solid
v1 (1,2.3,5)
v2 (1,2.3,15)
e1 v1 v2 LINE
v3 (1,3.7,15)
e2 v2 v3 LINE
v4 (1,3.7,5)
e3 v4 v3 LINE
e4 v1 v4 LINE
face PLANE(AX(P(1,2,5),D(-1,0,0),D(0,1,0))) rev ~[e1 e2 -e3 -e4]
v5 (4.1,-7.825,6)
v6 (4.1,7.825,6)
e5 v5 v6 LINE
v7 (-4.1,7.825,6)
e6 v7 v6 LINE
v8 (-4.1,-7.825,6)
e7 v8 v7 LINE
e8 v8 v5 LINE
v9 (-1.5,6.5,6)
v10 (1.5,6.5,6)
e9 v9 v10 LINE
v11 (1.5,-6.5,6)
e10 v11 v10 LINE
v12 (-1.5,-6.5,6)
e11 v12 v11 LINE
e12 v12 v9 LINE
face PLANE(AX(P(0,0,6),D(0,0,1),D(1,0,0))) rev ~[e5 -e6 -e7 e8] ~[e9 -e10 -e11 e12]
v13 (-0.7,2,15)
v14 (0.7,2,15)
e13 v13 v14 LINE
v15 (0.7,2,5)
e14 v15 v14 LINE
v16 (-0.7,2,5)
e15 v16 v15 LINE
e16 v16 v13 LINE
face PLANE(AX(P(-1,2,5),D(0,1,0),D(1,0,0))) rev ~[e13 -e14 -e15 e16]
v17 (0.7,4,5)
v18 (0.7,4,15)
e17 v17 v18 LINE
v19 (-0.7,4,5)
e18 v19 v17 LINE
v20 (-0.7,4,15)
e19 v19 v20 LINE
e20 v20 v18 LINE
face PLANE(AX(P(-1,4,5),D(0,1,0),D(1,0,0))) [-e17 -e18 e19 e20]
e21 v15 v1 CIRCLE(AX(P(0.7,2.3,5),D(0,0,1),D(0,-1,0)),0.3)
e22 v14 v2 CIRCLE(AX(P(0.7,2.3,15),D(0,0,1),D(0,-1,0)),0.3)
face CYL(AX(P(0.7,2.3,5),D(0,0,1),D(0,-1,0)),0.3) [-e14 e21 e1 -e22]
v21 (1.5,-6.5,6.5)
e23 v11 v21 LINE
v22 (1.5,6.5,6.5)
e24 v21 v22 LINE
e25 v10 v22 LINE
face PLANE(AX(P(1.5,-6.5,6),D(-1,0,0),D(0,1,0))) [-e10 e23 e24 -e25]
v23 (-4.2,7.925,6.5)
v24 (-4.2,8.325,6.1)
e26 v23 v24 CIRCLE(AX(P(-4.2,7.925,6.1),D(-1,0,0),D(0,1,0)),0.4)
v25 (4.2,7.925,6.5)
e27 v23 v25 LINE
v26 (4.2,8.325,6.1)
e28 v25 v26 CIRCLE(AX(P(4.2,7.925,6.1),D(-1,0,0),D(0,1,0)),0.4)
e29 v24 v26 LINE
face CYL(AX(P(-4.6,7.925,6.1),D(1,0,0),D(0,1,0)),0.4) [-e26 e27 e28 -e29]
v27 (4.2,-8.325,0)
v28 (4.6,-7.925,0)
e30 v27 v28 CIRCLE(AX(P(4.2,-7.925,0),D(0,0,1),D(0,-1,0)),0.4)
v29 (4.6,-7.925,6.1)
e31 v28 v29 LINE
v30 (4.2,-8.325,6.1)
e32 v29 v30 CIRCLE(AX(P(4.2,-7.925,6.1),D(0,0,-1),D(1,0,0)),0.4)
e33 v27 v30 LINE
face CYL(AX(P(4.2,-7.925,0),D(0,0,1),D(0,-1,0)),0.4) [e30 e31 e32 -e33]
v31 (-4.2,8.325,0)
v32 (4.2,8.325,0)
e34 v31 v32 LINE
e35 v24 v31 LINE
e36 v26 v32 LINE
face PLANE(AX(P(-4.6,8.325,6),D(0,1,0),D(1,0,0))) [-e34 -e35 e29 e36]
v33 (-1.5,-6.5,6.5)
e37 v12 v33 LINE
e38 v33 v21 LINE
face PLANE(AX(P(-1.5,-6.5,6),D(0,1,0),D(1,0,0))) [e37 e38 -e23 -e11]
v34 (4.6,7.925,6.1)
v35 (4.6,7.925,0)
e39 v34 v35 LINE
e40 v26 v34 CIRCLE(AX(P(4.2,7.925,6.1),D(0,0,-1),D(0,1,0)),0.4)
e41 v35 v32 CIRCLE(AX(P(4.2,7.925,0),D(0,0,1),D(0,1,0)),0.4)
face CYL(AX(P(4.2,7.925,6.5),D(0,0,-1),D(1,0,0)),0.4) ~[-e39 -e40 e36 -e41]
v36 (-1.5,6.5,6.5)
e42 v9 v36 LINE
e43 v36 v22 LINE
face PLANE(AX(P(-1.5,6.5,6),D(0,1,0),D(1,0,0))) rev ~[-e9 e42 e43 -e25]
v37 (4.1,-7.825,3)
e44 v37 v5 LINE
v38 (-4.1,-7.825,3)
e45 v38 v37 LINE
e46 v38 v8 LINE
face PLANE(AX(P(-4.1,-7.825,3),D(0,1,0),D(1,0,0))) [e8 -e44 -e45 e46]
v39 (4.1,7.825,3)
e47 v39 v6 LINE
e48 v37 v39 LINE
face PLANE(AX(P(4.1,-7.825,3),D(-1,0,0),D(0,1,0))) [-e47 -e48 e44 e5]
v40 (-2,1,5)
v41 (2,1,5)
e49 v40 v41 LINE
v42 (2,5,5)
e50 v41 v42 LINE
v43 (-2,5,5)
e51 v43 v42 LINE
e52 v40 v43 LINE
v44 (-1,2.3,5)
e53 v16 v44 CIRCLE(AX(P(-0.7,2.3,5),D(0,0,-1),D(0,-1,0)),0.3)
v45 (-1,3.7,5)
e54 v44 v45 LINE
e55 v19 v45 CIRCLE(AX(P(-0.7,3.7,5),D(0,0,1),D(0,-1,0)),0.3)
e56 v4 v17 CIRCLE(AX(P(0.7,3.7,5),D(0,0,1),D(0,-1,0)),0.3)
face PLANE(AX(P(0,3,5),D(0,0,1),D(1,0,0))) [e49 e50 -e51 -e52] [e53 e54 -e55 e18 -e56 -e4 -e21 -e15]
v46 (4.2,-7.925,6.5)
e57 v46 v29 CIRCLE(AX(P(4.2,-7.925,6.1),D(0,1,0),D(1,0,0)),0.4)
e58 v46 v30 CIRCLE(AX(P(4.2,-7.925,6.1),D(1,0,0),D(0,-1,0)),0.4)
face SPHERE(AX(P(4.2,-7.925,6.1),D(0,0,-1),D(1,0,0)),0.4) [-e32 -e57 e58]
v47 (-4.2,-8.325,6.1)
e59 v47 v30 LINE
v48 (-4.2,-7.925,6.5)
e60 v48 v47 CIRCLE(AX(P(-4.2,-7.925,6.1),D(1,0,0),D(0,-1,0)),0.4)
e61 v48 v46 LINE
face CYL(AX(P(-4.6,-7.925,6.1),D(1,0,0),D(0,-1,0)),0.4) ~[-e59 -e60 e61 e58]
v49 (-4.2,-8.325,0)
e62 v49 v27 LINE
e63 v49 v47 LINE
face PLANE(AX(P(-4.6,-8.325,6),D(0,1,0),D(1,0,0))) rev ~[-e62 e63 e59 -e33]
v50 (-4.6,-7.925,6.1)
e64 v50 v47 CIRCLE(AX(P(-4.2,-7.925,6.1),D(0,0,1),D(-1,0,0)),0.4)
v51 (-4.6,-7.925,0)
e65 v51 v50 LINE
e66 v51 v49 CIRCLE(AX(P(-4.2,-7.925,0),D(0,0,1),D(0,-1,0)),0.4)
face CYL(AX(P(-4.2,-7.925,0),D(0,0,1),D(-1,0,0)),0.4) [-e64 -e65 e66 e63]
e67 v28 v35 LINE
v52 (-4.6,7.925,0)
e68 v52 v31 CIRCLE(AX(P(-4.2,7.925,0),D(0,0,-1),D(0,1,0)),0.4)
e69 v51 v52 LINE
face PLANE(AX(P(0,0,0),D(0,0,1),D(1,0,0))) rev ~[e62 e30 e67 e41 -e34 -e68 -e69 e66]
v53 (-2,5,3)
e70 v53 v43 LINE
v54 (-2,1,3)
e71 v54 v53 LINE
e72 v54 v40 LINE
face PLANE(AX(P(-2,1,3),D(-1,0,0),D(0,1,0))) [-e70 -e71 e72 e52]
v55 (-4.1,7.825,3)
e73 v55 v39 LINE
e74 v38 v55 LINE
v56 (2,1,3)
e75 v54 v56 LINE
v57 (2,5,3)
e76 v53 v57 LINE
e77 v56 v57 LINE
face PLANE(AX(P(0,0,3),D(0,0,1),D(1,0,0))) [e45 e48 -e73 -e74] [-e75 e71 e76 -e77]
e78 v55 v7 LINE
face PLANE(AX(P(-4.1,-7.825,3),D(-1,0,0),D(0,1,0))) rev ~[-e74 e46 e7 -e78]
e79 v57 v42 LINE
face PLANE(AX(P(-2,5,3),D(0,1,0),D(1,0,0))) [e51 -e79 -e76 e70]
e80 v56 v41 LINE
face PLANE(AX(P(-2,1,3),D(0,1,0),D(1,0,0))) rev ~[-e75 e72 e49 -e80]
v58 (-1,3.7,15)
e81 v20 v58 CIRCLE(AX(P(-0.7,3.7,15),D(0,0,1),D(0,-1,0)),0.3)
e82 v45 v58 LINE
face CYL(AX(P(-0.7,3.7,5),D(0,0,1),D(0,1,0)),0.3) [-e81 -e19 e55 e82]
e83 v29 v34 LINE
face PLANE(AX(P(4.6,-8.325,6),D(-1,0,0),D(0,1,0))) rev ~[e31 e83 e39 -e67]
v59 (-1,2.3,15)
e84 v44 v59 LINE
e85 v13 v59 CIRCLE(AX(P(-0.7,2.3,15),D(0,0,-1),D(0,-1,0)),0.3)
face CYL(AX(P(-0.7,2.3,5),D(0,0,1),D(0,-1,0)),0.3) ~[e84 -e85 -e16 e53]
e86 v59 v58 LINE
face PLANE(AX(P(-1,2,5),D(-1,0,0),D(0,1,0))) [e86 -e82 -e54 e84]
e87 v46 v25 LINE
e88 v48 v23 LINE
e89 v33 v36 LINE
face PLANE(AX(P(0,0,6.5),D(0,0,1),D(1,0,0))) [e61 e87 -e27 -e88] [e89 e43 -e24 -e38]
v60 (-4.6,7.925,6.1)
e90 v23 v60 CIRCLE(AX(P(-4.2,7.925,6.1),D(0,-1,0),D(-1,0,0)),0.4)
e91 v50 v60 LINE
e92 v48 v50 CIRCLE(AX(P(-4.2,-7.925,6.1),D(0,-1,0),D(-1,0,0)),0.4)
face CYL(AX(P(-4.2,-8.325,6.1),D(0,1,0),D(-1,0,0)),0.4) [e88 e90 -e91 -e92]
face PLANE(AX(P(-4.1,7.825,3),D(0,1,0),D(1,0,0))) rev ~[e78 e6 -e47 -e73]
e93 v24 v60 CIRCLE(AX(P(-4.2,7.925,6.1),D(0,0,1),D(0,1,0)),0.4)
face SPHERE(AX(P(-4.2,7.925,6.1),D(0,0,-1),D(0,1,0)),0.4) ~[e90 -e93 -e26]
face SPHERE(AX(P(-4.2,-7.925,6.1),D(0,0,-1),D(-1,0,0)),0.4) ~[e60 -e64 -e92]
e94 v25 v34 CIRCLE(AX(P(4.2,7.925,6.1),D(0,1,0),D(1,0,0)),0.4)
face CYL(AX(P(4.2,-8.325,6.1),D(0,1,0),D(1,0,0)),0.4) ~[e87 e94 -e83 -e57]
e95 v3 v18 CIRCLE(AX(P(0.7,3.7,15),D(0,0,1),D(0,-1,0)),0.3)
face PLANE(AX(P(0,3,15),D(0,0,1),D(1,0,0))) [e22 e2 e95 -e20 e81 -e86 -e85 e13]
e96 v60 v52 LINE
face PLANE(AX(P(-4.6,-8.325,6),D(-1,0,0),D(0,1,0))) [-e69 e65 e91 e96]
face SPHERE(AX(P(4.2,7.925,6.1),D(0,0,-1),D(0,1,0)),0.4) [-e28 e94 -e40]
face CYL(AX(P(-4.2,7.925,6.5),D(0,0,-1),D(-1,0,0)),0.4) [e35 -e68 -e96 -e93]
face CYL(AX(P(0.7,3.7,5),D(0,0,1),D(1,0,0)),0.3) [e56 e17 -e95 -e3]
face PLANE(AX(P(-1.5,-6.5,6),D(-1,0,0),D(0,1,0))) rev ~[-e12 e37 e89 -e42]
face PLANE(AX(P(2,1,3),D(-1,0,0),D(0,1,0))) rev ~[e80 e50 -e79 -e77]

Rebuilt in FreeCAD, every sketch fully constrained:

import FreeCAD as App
import Part
import Sketcher
from FreeCAD import Vector
Q = App.Units.Quantity


def edges_at(feature, points):
    """Names of the edges that pass closest to the given points."""
    edges = feature.Shape.Edges
    near = lambda p: min(range(len(edges)), key=lambda i: edges[i].distToShape(Part.Vertex(*p))[0])
    return sorted({f"Edge{near(p) + 1}" for p in points})

doc = App.newDocument("Part")
body = doc.addObject("PartDesign::Body", "Body")

# Sketch on XY plane
sketch1 = doc.addObject("Sketcher::SketchObject", "Sketch")
body.addObject(sketch1)
sketch1.AttachmentSupport = (doc.XY_Plane, [""])
sketch1.MapMode = "FlatFace"
sketch1.addGeometry([
    Part.LineSegment(Vector(-5, 8, 0), Vector(-5, -8, 0)),
    Part.LineSegment(Vector(-5, -8, 0), Vector(5, -8, 0)),
    Part.LineSegment(Vector(5, -8, 0), Vector(5, 8, 0)),
    Part.LineSegment(Vector(5, 8, 0), Vector(-5, 8, 0)),
], False)
sketch1.addConstraint([
    Sketcher.Constraint("Coincident", 0, 2, 1, 1),
    Sketcher.Constraint("Coincident", 1, 2, 2, 1),
    Sketcher.Constraint("Coincident", 2, 2, 3, 1),
    Sketcher.Constraint("Coincident", 3, 2, 0, 1),
    Sketcher.Constraint("Vertical", 0),
    Sketcher.Constraint("Horizontal", 1),
    Sketcher.Constraint("Vertical", 2),
    Sketcher.Constraint("Horizontal", 3),
    Sketcher.Constraint("Symmetric", 0, 2, 2, 2, -1, 1),
    Sketcher.Constraint("DistanceX", 1, 1, 1, 2, Q("9.2 mm")),
    Sketcher.Constraint("DistanceY", 0, 2, 0, 1, Q("16.65 mm")),
])
pad1 = doc.addObject("PartDesign::Pad", "Pad")
body.addObject(pad1)
pad1.Profile = sketch1
pad1.Length = 3

# Sketch on XY plane
sketch2 = doc.addObject("Sketcher::SketchObject", "Sketch001")
body.addObject(sketch2)
sketch2.AttachmentSupport = (doc.XY_Plane, [""])
sketch2.MapMode = "FlatFace"
sketch2.AttachmentOffset = App.Placement(Vector(0, 0, 3), App.Rotation())
sketch2.addGeometry([
    Part.LineSegment(Vector(-5, 8, 0), Vector(-5, -8, 0)),  # 0
    Part.LineSegment(Vector(-5, -8, 0), Vector(5, -8, 0)),  # 1
    Part.LineSegment(Vector(5, -8, 0), Vector(5, 8, 0)),  # 2
    Part.LineSegment(Vector(5, 8, 0), Vector(-5, 8, 0)),  # 3
    Part.LineSegment(Vector(4, -8, 0), Vector(-4, -8, 0)),  # 4
    Part.LineSegment(Vector(-4, -8, 0), Vector(-4, 8, 0)),  # 5
    Part.LineSegment(Vector(-4, 8, 0), Vector(4, 8, 0)),  # 6
    Part.LineSegment(Vector(4, 8, 0), Vector(4, -8, 0)),  # 7
], False)
sketch2.addConstraint([
    Sketcher.Constraint("Coincident", 0, 2, 1, 1),
    Sketcher.Constraint("Coincident", 1, 2, 2, 1),
    Sketcher.Constraint("Coincident", 2, 2, 3, 1),
    Sketcher.Constraint("Coincident", 3, 2, 0, 1),
    Sketcher.Constraint("Coincident", 4, 2, 5, 1),
    Sketcher.Constraint("Coincident", 5, 2, 6, 1),
    Sketcher.Constraint("Coincident", 6, 2, 7, 1),
    Sketcher.Constraint("Coincident", 7, 2, 4, 1),
    Sketcher.Constraint("Vertical", 0),
    Sketcher.Constraint("Horizontal", 1),
    Sketcher.Constraint("Vertical", 2),
    Sketcher.Constraint("Horizontal", 3),
    Sketcher.Constraint("Horizontal", 4),
    Sketcher.Constraint("Vertical", 5),
    Sketcher.Constraint("Horizontal", 6),
    Sketcher.Constraint("Vertical", 7),
    Sketcher.Constraint("Symmetric", 0, 2, 2, 2, -1, 1),
    Sketcher.Constraint("Symmetric", 4, 2, 6, 2, -1, 1),
    Sketcher.Constraint("DistanceX", 1, 1, 1, 2, Q("9.2 mm")),
    Sketcher.Constraint("DistanceX", 4, 2, 4, 1, Q("8.2 mm")),
    Sketcher.Constraint("DistanceY", 0, 2, 0, 1, Q("16.65 mm")),
    Sketcher.Constraint("DistanceY", 5, 1, 5, 2, Q("15.65 mm")),
])
pad2 = doc.addObject("PartDesign::Pad", "Pad001")
body.addObject(pad2)
pad2.Profile = sketch2
pad2.Length = 3

# Sketch on XY plane
sketch3 = doc.addObject("Sketcher::SketchObject", "Sketch002")
body.addObject(sketch3)
sketch3.AttachmentSupport = (doc.XY_Plane, [""])
sketch3.MapMode = "FlatFace"
sketch3.AttachmentOffset = App.Placement(Vector(0, 0, 6), App.Rotation())
sketch3.addGeometry([
    Part.LineSegment(Vector(-4.6, 8.3, 0), Vector(-4.6, -8.3, 0)),  # 0
    Part.LineSegment(Vector(-4.6, -8.3, 0), Vector(4.6, -8.3, 0)),  # 1
    Part.LineSegment(Vector(4.6, -8.3, 0), Vector(4.6, 8.3, 0)),  # 2
    Part.LineSegment(Vector(4.6, 8.3, 0), Vector(-4.6, 8.3, 0)),  # 3
    Part.LineSegment(Vector(1.5, -6.5, 0), Vector(-1.5, -6.5, 0)),  # 4
    Part.LineSegment(Vector(-1.5, -6.5, 0), Vector(-1.5, 6.5, 0)),  # 5
    Part.LineSegment(Vector(-1.5, 6.5, 0), Vector(1.5, 6.5, 0)),  # 6
    Part.LineSegment(Vector(1.5, 6.5, 0), Vector(1.5, -6.5, 0)),  # 7
], False)
sketch3.addConstraint([
    Sketcher.Constraint("Coincident", 0, 2, 1, 1),
    Sketcher.Constraint("Coincident", 1, 2, 2, 1),
    Sketcher.Constraint("Coincident", 2, 2, 3, 1),
    Sketcher.Constraint("Coincident", 3, 2, 0, 1),
    Sketcher.Constraint("Coincident", 4, 2, 5, 1),
    Sketcher.Constraint("Coincident", 5, 2, 6, 1),
    Sketcher.Constraint("Coincident", 6, 2, 7, 1),
    Sketcher.Constraint("Coincident", 7, 2, 4, 1),
    Sketcher.Constraint("Vertical", 0),
    Sketcher.Constraint("Horizontal", 1),
    Sketcher.Constraint("Vertical", 2),
    Sketcher.Constraint("Horizontal", 3),
    Sketcher.Constraint("Horizontal", 4),
    Sketcher.Constraint("Vertical", 5),
    Sketcher.Constraint("Horizontal", 6),
    Sketcher.Constraint("Vertical", 7),
    Sketcher.Constraint("Symmetric", 0, 2, 2, 2, -1, 1),
    Sketcher.Constraint("Symmetric", 4, 2, 6, 2, -1, 1),
    Sketcher.Constraint("DistanceX", 4, 2, 4, 1, Q("3 mm")),
    Sketcher.Constraint("DistanceY", 5, 1, 5, 2, Q("13 mm")),
    Sketcher.Constraint("DistanceX", 1, 1, 1, 2, Q("9.2 mm")),
    Sketcher.Constraint("DistanceY", 0, 2, 0, 1, Q("16.65 mm")),
])
pad3 = doc.addObject("PartDesign::Pad", "Pad002")
body.addObject(pad3)
pad3.Profile = sketch3
pad3.Length = 0.5
doc.recompute()

fillet = doc.addObject("PartDesign::Fillet", "Fillet")
body.addObject(fillet)
fillet.Base = (pad3, edges_at(pad3, [
    (4.6, -8.325, 3.25),
    (-4.6, -8.325, 3.25),
    (-4.6, 8.325, 3.25),
    (4.6, 8.325, 3.25),
    (0, 8.325, 6.5),
    (4.6, 0, 6.5),
    (-4.6, 0, 6.5),
    (0, -8.325, 6.5),
]))
fillet.Radius = 0.4

# Sketch on XY plane
sketch4 = doc.addObject("Sketcher::SketchObject", "Sketch003")
body.addObject(sketch4)
sketch4.AttachmentSupport = (doc.XY_Plane, [""])
sketch4.MapMode = "FlatFace"
sketch4.AttachmentOffset = App.Placement(Vector(0, 0, 3), App.Rotation())
sketch4.addGeometry([
    Part.LineSegment(Vector(-2, 5, 0), Vector(-2, 1, 0)),
    Part.LineSegment(Vector(-2, 1, 0), Vector(2, 1, 0)),
    Part.LineSegment(Vector(2, 1, 0), Vector(2, 5, 0)),
    Part.LineSegment(Vector(2, 5, 0), Vector(-2, 5, 0)),
], False)
sketch4.addConstraint([
    Sketcher.Constraint("Coincident", 0, 2, 1, 1),
    Sketcher.Constraint("Coincident", 1, 2, 2, 1),
    Sketcher.Constraint("Coincident", 2, 2, 3, 1),
    Sketcher.Constraint("Coincident", 3, 2, 0, 1),
    Sketcher.Constraint("Vertical", 0),
    Sketcher.Constraint("Horizontal", 1),
    Sketcher.Constraint("Vertical", 2),
    Sketcher.Constraint("Horizontal", 3),
    Sketcher.Constraint("Equal", 3, 0),
    Sketcher.Constraint("DistanceX", 1, 1, 1, 2, Q("4 mm")),
    Sketcher.Constraint("DistanceX", 0, 2, -1, 1, Q("2 mm")),
    Sketcher.Constraint("DistanceY", -1, 1, 0, 2, Q("1 mm")),
])
pad4 = doc.addObject("PartDesign::Pad", "Pad003")
body.addObject(pad4)
pad4.Profile = sketch4
pad4.Length = 2

# Sketch on XY plane
sketch5 = doc.addObject("Sketcher::SketchObject", "Sketch004")
body.addObject(sketch5)
sketch5.AttachmentSupport = (doc.XY_Plane, [""])
sketch5.MapMode = "FlatFace"
sketch5.AttachmentOffset = App.Placement(Vector(0, 0, 5), App.Rotation())
sketch5.addGeometry([
    Part.LineSegment(Vector(-1, 4, 0), Vector(-1, 2, 0)),
    Part.LineSegment(Vector(-1, 2, 0), Vector(1, 2, 0)),
    Part.LineSegment(Vector(1, 2, 0), Vector(1, 4, 0)),
    Part.LineSegment(Vector(1, 4, 0), Vector(-1, 4, 0)),
], False)
sketch5.addConstraint([
    Sketcher.Constraint("Coincident", 0, 2, 1, 1),
    Sketcher.Constraint("Coincident", 1, 2, 2, 1),
    Sketcher.Constraint("Coincident", 2, 2, 3, 1),
    Sketcher.Constraint("Coincident", 3, 2, 0, 1),
    Sketcher.Constraint("Vertical", 0),
    Sketcher.Constraint("Horizontal", 1),
    Sketcher.Constraint("Vertical", 2),
    Sketcher.Constraint("Horizontal", 3),
    Sketcher.Constraint("Equal", 3, 0),
    Sketcher.Constraint("DistanceX", 1, 1, 1, 2, Q("2 mm")),
    Sketcher.Constraint("DistanceX", 0, 2, -1, 1, Q("1 mm")),
    Sketcher.Constraint("DistanceY", -1, 1, 0, 2, Q("2 mm")),
])
pad5 = doc.addObject("PartDesign::Pad", "Pad004")
body.addObject(pad5)
pad5.Profile = sketch5
pad5.Length = 10
doc.recompute()

fillet2 = doc.addObject("PartDesign::Fillet", "Fillet001")
body.addObject(fillet2)
fillet2.Base = (pad5, edges_at(pad5, [
    (-1, 4, 10),
    (-1, 2, 10),
    (1, 4, 10),
    (1, 2, 10),
]))
fillet2.Radius = 0.3

doc.recompute()
